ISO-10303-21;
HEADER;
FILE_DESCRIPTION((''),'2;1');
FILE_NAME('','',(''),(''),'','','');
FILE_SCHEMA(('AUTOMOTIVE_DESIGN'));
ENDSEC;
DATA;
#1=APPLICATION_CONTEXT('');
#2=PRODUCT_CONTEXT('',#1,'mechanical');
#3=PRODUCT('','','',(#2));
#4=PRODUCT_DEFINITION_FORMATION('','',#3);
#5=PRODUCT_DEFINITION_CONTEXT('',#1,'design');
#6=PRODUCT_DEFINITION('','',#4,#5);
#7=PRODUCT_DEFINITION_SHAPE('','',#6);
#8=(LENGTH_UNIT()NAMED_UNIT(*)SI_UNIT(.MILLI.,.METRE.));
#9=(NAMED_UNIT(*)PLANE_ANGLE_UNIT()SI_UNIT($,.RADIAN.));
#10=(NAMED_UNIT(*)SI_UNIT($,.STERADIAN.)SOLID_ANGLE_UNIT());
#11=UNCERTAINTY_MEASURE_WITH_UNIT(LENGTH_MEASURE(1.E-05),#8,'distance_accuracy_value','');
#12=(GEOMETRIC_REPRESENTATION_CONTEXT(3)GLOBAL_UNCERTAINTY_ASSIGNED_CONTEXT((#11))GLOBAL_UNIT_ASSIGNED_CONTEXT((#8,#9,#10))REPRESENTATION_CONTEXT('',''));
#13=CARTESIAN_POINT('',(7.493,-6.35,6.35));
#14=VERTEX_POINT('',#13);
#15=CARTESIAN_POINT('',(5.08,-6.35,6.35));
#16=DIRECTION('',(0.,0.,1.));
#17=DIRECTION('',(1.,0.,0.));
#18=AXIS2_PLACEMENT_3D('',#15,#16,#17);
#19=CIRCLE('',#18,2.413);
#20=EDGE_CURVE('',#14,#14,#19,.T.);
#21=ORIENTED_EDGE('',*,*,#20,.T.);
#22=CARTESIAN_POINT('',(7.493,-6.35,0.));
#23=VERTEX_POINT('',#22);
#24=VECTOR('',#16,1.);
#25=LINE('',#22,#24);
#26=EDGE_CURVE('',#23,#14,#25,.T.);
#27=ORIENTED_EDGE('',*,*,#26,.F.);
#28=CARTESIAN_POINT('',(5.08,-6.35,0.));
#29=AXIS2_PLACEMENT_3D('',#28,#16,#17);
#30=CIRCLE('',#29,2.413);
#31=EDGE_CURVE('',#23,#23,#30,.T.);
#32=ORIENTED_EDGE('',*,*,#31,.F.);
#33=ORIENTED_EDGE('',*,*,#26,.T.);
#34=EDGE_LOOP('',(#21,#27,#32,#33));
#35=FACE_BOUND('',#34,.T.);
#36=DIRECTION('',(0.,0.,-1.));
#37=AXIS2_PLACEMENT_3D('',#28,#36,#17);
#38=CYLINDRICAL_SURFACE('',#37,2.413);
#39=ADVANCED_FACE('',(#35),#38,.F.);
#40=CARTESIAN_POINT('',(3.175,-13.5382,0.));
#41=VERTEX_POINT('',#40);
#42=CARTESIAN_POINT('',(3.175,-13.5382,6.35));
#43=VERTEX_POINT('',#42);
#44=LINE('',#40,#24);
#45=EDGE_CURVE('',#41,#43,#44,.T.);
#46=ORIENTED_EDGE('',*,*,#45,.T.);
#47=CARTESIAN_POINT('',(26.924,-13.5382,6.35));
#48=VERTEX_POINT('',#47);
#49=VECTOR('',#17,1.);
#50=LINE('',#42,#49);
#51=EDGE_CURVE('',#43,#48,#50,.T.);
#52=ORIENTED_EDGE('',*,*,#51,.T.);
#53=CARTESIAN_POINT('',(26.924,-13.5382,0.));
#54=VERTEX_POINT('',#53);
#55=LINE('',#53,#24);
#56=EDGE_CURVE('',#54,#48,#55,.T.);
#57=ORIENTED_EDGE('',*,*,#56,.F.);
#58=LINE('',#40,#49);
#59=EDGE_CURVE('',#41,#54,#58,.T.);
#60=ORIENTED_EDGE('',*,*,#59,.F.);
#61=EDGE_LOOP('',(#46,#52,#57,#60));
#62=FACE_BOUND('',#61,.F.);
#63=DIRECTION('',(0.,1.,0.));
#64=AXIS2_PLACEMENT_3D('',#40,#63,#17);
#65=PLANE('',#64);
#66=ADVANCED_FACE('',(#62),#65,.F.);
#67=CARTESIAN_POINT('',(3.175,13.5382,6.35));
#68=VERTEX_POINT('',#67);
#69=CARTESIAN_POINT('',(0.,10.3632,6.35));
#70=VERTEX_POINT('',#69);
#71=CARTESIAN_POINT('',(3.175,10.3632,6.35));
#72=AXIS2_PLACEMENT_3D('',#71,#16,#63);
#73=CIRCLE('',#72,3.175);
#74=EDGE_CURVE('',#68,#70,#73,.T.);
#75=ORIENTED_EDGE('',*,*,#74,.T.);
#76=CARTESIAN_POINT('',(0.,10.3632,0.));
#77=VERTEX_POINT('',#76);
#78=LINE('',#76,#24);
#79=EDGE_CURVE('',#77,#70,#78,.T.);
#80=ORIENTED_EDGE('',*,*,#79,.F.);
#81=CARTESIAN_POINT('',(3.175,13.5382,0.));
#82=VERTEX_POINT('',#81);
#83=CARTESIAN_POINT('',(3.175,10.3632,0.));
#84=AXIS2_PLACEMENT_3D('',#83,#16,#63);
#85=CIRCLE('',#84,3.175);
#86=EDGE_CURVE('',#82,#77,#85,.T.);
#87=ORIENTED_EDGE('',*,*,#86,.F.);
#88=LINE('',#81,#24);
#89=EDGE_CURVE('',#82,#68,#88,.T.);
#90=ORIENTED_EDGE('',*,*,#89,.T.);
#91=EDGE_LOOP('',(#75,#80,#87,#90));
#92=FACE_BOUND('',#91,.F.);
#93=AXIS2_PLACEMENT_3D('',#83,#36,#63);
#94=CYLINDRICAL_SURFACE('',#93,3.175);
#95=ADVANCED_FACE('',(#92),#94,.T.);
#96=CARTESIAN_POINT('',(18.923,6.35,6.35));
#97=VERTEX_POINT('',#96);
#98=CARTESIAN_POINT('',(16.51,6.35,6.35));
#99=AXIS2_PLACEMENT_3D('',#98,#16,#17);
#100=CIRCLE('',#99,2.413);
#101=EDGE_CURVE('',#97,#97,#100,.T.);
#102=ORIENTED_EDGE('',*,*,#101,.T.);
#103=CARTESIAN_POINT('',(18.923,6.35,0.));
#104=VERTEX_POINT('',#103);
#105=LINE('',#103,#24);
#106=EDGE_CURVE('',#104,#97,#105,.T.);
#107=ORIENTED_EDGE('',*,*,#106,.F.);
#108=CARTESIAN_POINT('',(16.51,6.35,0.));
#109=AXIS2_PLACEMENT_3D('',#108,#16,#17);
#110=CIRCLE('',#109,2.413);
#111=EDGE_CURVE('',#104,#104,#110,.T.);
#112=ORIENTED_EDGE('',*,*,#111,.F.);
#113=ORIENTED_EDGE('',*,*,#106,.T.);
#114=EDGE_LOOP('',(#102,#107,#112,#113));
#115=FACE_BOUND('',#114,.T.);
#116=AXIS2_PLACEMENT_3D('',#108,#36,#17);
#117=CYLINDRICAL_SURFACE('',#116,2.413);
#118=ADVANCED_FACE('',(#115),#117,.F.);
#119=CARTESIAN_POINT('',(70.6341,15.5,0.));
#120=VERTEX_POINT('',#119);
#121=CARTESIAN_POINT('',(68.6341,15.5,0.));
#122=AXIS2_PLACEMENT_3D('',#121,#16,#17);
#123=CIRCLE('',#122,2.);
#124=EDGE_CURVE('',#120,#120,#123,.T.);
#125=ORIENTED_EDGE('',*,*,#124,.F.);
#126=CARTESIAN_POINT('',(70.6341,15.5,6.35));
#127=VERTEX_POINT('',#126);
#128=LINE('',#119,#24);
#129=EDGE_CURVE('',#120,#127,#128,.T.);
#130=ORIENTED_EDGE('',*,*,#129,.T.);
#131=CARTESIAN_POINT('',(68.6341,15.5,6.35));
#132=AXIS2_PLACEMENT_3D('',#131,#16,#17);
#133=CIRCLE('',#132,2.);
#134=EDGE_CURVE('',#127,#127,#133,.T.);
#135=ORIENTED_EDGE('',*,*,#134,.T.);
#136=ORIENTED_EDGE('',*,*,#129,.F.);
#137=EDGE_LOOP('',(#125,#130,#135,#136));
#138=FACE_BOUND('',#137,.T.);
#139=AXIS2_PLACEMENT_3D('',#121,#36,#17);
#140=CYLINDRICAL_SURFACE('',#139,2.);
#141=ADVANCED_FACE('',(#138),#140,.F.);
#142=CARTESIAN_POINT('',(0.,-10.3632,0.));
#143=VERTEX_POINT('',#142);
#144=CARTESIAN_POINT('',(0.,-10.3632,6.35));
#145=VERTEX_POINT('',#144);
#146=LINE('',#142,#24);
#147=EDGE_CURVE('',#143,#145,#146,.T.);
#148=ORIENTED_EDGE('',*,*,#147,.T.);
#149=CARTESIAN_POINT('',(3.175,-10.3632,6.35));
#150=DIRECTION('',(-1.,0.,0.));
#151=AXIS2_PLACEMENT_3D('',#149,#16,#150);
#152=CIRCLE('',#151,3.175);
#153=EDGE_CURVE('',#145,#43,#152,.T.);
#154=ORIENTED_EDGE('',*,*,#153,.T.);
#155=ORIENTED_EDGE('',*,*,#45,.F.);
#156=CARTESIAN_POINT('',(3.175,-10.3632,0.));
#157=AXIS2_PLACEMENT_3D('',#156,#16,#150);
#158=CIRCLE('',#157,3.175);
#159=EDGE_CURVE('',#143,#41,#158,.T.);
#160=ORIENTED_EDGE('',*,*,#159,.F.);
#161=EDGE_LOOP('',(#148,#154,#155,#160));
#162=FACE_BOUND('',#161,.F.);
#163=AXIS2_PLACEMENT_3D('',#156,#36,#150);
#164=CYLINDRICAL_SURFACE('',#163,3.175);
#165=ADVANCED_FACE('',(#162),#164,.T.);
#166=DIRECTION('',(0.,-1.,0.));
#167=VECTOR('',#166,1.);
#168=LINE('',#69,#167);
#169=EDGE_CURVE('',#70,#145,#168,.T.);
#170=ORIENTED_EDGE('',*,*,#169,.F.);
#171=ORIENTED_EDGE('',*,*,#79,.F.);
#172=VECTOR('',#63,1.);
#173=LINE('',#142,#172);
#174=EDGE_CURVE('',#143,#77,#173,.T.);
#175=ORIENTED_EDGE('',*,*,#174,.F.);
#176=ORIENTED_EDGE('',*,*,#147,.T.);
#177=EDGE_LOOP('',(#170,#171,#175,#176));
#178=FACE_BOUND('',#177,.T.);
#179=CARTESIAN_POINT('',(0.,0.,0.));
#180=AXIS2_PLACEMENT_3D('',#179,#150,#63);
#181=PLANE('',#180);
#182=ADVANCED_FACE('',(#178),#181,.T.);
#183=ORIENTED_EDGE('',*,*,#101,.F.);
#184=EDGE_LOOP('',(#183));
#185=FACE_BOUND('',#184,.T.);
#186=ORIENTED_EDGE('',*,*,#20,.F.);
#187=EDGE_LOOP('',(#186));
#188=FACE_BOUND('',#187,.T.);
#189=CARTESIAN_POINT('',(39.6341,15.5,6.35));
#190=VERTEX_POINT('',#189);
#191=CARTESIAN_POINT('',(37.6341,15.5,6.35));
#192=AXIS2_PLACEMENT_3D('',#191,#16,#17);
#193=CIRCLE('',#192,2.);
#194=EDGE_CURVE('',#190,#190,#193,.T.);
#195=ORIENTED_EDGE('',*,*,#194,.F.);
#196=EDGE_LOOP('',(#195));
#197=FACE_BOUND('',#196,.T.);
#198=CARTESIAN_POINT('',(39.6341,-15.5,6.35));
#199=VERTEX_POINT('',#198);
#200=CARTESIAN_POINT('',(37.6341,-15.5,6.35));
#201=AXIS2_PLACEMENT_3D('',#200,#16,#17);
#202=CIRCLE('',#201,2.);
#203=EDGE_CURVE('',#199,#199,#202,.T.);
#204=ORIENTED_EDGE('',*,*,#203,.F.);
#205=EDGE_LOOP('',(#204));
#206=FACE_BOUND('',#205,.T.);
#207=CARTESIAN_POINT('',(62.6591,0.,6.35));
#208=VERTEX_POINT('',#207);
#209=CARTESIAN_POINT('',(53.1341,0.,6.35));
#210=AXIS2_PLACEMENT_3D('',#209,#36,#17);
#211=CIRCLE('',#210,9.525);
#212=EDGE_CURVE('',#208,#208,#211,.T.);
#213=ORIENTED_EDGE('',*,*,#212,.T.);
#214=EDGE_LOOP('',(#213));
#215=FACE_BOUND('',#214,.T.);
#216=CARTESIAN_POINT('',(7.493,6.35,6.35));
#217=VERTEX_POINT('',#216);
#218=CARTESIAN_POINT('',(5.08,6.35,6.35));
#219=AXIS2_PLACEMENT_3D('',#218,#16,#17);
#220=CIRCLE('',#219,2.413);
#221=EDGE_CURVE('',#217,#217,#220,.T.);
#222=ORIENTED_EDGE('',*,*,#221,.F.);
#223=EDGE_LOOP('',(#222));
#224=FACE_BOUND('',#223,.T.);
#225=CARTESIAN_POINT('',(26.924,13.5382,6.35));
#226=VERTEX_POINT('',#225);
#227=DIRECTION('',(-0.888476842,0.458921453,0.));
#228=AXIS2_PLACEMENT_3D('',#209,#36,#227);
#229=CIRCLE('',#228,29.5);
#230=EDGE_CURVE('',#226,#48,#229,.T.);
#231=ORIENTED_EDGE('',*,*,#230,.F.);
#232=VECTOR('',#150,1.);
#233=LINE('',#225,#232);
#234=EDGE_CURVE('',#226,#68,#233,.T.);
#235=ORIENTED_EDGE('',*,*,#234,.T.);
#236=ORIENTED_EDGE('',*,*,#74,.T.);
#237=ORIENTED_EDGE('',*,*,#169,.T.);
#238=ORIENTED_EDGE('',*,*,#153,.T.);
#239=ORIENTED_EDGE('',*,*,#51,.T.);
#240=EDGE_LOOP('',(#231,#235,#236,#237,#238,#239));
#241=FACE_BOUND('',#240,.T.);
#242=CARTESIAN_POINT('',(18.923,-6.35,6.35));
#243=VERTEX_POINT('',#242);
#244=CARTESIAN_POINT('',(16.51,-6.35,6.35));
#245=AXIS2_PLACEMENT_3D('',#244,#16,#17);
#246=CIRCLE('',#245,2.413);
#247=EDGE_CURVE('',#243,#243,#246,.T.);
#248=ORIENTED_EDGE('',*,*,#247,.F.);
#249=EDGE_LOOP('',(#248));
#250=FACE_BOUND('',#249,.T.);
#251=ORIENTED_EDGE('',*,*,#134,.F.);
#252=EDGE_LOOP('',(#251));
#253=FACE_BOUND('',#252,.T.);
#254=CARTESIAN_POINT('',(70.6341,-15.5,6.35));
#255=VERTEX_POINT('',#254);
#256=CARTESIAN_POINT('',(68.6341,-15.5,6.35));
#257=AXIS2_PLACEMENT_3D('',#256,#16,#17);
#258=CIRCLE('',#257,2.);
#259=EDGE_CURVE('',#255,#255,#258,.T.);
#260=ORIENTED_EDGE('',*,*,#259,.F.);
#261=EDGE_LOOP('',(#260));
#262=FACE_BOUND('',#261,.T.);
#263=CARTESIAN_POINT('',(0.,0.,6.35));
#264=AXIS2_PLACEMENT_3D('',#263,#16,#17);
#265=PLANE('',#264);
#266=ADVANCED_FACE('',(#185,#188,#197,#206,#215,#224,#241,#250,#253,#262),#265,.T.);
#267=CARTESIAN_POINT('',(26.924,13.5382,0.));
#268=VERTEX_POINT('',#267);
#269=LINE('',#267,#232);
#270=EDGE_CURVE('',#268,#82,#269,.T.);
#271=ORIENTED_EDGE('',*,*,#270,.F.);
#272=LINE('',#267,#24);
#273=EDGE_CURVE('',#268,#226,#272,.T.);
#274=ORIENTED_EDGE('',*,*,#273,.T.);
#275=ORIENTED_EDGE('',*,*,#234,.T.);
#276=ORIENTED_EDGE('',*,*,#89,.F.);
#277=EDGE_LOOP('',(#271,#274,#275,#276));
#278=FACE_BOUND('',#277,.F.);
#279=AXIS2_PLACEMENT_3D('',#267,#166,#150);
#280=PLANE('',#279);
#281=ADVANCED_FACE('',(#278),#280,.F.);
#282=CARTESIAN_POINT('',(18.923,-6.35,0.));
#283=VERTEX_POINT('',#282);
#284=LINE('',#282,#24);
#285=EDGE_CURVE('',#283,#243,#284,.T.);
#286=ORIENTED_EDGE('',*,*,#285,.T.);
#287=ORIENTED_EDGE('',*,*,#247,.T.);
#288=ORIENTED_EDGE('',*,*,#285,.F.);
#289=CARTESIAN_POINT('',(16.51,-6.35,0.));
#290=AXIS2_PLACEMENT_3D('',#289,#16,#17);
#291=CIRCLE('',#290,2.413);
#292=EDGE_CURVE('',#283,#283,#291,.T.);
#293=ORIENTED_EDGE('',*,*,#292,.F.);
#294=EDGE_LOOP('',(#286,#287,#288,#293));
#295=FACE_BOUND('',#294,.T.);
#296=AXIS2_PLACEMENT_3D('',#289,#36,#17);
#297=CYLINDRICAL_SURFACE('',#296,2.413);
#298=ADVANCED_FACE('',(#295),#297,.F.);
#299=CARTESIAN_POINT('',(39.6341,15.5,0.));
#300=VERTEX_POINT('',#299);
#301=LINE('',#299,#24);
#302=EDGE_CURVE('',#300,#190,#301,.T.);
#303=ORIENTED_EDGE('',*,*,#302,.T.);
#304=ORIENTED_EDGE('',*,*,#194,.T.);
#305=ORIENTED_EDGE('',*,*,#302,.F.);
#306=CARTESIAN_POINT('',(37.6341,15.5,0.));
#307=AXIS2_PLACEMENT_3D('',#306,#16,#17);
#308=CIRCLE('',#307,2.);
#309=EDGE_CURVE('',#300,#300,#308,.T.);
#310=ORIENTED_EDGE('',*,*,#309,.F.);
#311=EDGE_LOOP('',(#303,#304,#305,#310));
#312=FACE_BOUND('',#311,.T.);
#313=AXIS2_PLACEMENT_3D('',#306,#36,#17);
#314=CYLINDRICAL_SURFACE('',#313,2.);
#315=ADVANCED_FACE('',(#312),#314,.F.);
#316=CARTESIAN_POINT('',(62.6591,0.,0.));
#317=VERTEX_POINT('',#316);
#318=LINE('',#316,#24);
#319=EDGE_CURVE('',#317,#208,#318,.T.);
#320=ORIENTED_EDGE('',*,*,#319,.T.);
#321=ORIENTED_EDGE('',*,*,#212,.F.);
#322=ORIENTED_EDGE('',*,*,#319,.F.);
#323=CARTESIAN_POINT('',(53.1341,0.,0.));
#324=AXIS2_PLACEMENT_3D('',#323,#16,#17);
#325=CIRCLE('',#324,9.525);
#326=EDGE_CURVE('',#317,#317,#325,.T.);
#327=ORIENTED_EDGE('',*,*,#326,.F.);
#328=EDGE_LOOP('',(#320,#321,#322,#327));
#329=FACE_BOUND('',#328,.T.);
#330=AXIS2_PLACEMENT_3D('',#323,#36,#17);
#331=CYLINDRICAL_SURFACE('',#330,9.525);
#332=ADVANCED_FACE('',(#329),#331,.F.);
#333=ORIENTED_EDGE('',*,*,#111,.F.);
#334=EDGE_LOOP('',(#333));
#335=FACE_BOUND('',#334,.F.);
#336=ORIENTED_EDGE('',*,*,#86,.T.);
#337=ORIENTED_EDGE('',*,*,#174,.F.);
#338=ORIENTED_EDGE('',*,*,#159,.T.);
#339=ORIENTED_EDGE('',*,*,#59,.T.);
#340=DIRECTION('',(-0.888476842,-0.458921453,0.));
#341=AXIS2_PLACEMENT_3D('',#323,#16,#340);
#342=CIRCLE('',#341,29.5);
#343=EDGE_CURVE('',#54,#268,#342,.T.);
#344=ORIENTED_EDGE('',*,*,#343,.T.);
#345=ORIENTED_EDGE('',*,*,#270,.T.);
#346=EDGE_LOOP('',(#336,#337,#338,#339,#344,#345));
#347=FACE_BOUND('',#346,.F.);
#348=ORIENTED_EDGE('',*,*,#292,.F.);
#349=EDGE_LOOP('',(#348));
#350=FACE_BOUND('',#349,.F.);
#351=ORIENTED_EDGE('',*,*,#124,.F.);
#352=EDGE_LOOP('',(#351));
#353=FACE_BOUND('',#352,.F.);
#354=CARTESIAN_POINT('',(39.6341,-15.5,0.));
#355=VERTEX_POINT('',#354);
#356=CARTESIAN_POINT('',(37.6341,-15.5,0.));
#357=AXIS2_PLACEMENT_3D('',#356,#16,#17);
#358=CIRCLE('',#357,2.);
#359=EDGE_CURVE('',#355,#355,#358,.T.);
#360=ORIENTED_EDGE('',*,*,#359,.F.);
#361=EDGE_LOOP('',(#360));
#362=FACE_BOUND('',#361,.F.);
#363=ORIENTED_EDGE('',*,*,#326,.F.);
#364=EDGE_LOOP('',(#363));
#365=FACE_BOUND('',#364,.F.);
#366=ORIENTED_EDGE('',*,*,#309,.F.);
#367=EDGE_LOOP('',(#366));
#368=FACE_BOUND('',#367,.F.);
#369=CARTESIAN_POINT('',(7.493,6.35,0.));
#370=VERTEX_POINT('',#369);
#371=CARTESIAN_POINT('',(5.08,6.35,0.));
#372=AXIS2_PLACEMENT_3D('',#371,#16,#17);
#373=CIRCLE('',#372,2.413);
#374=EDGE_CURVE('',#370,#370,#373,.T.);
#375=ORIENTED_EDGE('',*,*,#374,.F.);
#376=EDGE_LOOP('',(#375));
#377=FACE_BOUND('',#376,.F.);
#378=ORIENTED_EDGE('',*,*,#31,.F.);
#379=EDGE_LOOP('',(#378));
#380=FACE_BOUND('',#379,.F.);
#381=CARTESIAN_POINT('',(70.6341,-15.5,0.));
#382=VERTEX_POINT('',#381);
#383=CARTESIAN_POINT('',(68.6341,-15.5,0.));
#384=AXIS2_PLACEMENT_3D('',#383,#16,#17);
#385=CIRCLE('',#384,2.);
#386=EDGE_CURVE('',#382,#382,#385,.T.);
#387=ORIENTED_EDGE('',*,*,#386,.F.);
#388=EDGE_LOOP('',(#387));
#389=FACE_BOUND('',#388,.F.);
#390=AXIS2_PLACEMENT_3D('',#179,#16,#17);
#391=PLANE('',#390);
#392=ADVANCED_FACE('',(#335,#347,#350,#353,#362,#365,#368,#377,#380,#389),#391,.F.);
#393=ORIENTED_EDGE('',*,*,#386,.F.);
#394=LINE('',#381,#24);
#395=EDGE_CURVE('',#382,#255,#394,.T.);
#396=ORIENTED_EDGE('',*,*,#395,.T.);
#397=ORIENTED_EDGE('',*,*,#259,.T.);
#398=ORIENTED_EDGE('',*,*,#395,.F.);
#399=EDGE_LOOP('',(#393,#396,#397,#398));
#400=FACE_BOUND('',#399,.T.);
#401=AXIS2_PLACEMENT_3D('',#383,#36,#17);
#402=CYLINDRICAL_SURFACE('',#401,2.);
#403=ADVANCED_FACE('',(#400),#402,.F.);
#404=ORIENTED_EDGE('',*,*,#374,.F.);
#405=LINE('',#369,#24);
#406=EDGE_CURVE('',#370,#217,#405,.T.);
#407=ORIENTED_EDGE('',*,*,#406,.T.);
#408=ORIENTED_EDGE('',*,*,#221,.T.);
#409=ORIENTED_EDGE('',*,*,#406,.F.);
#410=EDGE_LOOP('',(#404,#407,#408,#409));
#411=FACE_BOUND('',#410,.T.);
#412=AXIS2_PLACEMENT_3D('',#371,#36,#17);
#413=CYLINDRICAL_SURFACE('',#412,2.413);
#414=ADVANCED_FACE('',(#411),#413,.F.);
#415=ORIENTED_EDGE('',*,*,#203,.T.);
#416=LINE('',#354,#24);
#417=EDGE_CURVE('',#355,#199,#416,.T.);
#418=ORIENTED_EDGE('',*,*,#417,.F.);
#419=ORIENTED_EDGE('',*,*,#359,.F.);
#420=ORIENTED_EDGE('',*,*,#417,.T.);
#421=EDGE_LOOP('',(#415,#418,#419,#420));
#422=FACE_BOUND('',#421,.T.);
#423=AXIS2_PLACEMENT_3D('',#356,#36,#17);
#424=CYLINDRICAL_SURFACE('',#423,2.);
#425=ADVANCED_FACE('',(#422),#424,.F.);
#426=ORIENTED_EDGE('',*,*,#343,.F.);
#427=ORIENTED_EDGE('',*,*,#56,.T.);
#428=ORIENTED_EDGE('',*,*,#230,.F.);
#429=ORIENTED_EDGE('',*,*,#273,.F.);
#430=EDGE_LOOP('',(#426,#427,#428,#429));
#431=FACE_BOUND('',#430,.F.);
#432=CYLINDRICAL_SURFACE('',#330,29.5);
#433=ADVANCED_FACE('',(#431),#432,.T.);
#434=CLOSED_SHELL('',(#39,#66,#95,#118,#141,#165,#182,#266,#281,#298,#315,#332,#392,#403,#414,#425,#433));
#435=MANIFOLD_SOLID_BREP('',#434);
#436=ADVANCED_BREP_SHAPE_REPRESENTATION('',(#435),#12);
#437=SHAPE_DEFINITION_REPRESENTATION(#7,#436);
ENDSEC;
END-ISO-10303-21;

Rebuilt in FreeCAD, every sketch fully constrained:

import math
import FreeCAD as App
import Part
import Sketcher
Q = App.Units.Quantity

doc = App.newDocument("Part")
body = doc.addObject("PartDesign::Body", "Body")

# Sketch on XY plane
sketch1 = body.newObject("Sketcher::SketchObject", "Sketch")
sketch1.AttachmentSupport = (doc.getObject("XY_Plane"), [""])
sketch1.MapMode = "FlatFace"
sketch1.addGeometry(Part.LineSegment(App.Vector(26.924, 13.5382, 0), App.Vector(3.175, 13.5382, 0)), False)
sketch1.addGeometry(Part.ArcOfCircle(Part.Circle(App.Vector(3.175, 10.3632, 0), App.Vector(0, 0, 1), 3.175), math.radians(90), math.radians(180)), False)
sketch1.addGeometry(Part.LineSegment(App.Vector(0, 10.3632, 0), App.Vector(0, -10.3632, 0)), False)
sketch1.addGeometry(Part.ArcOfCircle(Part.Circle(App.Vector(3.175, -10.3632, 0), App.Vector(0, 0, 1), 3.175), math.radians(180), math.radians(270)), False)
sketch1.addGeometry(Part.LineSegment(App.Vector(3.175, -13.5382, 0), App.Vector(26.924, -13.5382, 0)), False)
sketch1.addGeometry(Part.ArcOfCircle(Part.Circle(App.Vector(53.1341, 0, 0), App.Vector(0, 0, 1), 29.5), math.radians(-152.682467), math.radians(152.682467)), False)
sketch1.addGeometry(Part.Circle(App.Vector(37.6341, 15.5, 0), App.Vector(0, 0, 1), 2), False)
sketch1.addGeometry(Part.Circle(App.Vector(68.6341, 15.5, 0), App.Vector(0, 0, 1), 2), False)
sketch1.addGeometry(Part.Circle(App.Vector(37.6341, -15.5, 0), App.Vector(0, 0, 1), 2), False)
sketch1.addGeometry(Part.Circle(App.Vector(68.6341, -15.5, 0), App.Vector(0, 0, 1), 2), False)
sketch1.addGeometry(Part.Circle(App.Vector(16.51, 6.35, 0), App.Vector(0, 0, 1), 2.413), False)
sketch1.addGeometry(Part.Circle(App.Vector(5.08, 6.35, 0), App.Vector(0, 0, 1), 2.413), False)
sketch1.addGeometry(Part.Circle(App.Vector(5.08, -6.35, 0), App.Vector(0, 0, 1), 2.413), False)
sketch1.addGeometry(Part.Circle(App.Vector(16.51, -6.35, 0), App.Vector(0, 0, 1), 2.413), False)
sketch1.addConstraint(Sketcher.Constraint("Tangent", 0, 2, 1, 1))
sketch1.addConstraint(Sketcher.Constraint("Tangent", 1, 2, 2, 1))
sketch1.addConstraint(Sketcher.Constraint("Tangent", 2, 2, 3, 1))
sketch1.addConstraint(Sketcher.Constraint("Tangent", 3, 2, 4, 1))
sketch1.addConstraint(Sketcher.Constraint("Coincident", 4, 2, 5, 1))
sketch1.addConstraint(Sketcher.Constraint("Coincident", 5, 2, 0, 1))
sketch1.addConstraint(Sketcher.Constraint("Horizontal", 0))
sketch1.addConstraint(Sketcher.Constraint("Vertical", 2))
sketch1.addConstraint(Sketcher.Constraint("Horizontal", 4))
sketch1.addConstraint(Sketcher.Constraint("Equal", 1, 3))
sketch1.addConstraint(Sketcher.Constraint("Equal", 6, 7))
sketch1.addConstraint(Sketcher.Constraint("Equal", 7, 8))
sketch1.addConstraint(Sketcher.Constraint("Equal", 8, 9))
sketch1.addConstraint(Sketcher.Constraint("Equal", 10, 11))
sketch1.addConstraint(Sketcher.Constraint("Equal", 11, 12))
sketch1.addConstraint(Sketcher.Constraint("Equal", 12, 13))
sketch1.addConstraint(Sketcher.Constraint("Symmetric", 1, 2, 2, 2, -1, 1))
sketch1.addConstraint(Sketcher.Constraint("Symmetric", 6, 3, 8, 3, -1))
sketch1.addConstraint(Sketcher.Constraint("Symmetric", 7, 3, 9, 3, -1))
sketch1.addConstraint(Sketcher.Constraint("Symmetric", 11, 3, 12, 3, -1))
sketch1.addConstraint(Sketcher.Constraint("Symmetric", 10, 3, 13, 3, -1))
sketch1.addConstraint(Sketcher.Constraint("PointOnObject", 5, 3, -1))
sketch1.addConstraint(Sketcher.Constraint("Horizontal", 6, 3, 7, 3))
sketch1.addConstraint(Sketcher.Constraint("Horizontal", 10, 3, 11, 3))
sketch1.addConstraint(Sketcher.Constraint("Diameter", 10, Q("0.19 in")))
sketch1.addConstraint(Sketcher.Constraint("Radius", 1, Q("0.125 in")))
sketch1.addConstraint(Sketcher.Constraint("DistanceX", -1, 1, 11, 3, Q("0.2 in")))
sketch1.addConstraint(Sketcher.Constraint("DistanceY", 12, 3, 11, 3, Q("0.5 in")))
sketch1.addConstraint(Sketcher.Constraint("Diameter", 6, Q("4 mm")))
sketch1.addConstraint(Sketcher.Constraint("DistanceY", 2, 2, 2, 1, Q("0.816 in")))
sketch1.addConstraint(Sketcher.Constraint("DistanceX", -1, 1, 4, 2, Q("1.06 in")))
sketch1.addConstraint(Sketcher.Constraint("Radius", 5, Q("29.5 mm")))
sketch1.addConstraint(Sketcher.Constraint("DistanceX", 11, 3, 10, 3, Q("0.45 in")))
sketch1.addConstraint(Sketcher.Constraint("DistanceY", -1, 1, 6, 3, Q("15.5 mm")))
sketch1.addConstraint(Sketcher.Constraint("DistanceX", 6, 3, 5, 3, Q("15.5 mm")))
sketch1.addConstraint(Sketcher.Constraint("DistanceX", 5, 3, 7, 3, Q("15.5 mm")))
pad1 = body.newObject("PartDesign::Pad", "Pad")
pad1.Profile = sketch1
pad1.Length = Q("0.25 in")

# Sketch on XY plane
sketch2 = body.newObject("Sketcher::SketchObject", "Sketch001")
sketch2.AttachmentSupport = (doc.getObject("XY_Plane"), [""])
sketch2.MapMode = "FlatFace"
sketch2.addGeometry(Part.Circle(App.Vector(53.1341, 0, 0), App.Vector(0, 0, 1), 9.525), False)
sketch2.addConstraint(Sketcher.Constraint("PointOnObject", 0, 3, -1))
sketch2.addConstraint(Sketcher.Constraint("Diameter", 0, Q("0.75 in")))
sketch2.addConstraint(Sketcher.Constraint("DistanceX", -1, 1, 0, 3, Q("2.0919 in")))
pocket1 = body.newObject("PartDesign::Pocket", "Pocket")
pocket1.Profile = sketch2
pocket1.Length = Q("1 in")
pocket1.Reversed = True

doc.recompute()
